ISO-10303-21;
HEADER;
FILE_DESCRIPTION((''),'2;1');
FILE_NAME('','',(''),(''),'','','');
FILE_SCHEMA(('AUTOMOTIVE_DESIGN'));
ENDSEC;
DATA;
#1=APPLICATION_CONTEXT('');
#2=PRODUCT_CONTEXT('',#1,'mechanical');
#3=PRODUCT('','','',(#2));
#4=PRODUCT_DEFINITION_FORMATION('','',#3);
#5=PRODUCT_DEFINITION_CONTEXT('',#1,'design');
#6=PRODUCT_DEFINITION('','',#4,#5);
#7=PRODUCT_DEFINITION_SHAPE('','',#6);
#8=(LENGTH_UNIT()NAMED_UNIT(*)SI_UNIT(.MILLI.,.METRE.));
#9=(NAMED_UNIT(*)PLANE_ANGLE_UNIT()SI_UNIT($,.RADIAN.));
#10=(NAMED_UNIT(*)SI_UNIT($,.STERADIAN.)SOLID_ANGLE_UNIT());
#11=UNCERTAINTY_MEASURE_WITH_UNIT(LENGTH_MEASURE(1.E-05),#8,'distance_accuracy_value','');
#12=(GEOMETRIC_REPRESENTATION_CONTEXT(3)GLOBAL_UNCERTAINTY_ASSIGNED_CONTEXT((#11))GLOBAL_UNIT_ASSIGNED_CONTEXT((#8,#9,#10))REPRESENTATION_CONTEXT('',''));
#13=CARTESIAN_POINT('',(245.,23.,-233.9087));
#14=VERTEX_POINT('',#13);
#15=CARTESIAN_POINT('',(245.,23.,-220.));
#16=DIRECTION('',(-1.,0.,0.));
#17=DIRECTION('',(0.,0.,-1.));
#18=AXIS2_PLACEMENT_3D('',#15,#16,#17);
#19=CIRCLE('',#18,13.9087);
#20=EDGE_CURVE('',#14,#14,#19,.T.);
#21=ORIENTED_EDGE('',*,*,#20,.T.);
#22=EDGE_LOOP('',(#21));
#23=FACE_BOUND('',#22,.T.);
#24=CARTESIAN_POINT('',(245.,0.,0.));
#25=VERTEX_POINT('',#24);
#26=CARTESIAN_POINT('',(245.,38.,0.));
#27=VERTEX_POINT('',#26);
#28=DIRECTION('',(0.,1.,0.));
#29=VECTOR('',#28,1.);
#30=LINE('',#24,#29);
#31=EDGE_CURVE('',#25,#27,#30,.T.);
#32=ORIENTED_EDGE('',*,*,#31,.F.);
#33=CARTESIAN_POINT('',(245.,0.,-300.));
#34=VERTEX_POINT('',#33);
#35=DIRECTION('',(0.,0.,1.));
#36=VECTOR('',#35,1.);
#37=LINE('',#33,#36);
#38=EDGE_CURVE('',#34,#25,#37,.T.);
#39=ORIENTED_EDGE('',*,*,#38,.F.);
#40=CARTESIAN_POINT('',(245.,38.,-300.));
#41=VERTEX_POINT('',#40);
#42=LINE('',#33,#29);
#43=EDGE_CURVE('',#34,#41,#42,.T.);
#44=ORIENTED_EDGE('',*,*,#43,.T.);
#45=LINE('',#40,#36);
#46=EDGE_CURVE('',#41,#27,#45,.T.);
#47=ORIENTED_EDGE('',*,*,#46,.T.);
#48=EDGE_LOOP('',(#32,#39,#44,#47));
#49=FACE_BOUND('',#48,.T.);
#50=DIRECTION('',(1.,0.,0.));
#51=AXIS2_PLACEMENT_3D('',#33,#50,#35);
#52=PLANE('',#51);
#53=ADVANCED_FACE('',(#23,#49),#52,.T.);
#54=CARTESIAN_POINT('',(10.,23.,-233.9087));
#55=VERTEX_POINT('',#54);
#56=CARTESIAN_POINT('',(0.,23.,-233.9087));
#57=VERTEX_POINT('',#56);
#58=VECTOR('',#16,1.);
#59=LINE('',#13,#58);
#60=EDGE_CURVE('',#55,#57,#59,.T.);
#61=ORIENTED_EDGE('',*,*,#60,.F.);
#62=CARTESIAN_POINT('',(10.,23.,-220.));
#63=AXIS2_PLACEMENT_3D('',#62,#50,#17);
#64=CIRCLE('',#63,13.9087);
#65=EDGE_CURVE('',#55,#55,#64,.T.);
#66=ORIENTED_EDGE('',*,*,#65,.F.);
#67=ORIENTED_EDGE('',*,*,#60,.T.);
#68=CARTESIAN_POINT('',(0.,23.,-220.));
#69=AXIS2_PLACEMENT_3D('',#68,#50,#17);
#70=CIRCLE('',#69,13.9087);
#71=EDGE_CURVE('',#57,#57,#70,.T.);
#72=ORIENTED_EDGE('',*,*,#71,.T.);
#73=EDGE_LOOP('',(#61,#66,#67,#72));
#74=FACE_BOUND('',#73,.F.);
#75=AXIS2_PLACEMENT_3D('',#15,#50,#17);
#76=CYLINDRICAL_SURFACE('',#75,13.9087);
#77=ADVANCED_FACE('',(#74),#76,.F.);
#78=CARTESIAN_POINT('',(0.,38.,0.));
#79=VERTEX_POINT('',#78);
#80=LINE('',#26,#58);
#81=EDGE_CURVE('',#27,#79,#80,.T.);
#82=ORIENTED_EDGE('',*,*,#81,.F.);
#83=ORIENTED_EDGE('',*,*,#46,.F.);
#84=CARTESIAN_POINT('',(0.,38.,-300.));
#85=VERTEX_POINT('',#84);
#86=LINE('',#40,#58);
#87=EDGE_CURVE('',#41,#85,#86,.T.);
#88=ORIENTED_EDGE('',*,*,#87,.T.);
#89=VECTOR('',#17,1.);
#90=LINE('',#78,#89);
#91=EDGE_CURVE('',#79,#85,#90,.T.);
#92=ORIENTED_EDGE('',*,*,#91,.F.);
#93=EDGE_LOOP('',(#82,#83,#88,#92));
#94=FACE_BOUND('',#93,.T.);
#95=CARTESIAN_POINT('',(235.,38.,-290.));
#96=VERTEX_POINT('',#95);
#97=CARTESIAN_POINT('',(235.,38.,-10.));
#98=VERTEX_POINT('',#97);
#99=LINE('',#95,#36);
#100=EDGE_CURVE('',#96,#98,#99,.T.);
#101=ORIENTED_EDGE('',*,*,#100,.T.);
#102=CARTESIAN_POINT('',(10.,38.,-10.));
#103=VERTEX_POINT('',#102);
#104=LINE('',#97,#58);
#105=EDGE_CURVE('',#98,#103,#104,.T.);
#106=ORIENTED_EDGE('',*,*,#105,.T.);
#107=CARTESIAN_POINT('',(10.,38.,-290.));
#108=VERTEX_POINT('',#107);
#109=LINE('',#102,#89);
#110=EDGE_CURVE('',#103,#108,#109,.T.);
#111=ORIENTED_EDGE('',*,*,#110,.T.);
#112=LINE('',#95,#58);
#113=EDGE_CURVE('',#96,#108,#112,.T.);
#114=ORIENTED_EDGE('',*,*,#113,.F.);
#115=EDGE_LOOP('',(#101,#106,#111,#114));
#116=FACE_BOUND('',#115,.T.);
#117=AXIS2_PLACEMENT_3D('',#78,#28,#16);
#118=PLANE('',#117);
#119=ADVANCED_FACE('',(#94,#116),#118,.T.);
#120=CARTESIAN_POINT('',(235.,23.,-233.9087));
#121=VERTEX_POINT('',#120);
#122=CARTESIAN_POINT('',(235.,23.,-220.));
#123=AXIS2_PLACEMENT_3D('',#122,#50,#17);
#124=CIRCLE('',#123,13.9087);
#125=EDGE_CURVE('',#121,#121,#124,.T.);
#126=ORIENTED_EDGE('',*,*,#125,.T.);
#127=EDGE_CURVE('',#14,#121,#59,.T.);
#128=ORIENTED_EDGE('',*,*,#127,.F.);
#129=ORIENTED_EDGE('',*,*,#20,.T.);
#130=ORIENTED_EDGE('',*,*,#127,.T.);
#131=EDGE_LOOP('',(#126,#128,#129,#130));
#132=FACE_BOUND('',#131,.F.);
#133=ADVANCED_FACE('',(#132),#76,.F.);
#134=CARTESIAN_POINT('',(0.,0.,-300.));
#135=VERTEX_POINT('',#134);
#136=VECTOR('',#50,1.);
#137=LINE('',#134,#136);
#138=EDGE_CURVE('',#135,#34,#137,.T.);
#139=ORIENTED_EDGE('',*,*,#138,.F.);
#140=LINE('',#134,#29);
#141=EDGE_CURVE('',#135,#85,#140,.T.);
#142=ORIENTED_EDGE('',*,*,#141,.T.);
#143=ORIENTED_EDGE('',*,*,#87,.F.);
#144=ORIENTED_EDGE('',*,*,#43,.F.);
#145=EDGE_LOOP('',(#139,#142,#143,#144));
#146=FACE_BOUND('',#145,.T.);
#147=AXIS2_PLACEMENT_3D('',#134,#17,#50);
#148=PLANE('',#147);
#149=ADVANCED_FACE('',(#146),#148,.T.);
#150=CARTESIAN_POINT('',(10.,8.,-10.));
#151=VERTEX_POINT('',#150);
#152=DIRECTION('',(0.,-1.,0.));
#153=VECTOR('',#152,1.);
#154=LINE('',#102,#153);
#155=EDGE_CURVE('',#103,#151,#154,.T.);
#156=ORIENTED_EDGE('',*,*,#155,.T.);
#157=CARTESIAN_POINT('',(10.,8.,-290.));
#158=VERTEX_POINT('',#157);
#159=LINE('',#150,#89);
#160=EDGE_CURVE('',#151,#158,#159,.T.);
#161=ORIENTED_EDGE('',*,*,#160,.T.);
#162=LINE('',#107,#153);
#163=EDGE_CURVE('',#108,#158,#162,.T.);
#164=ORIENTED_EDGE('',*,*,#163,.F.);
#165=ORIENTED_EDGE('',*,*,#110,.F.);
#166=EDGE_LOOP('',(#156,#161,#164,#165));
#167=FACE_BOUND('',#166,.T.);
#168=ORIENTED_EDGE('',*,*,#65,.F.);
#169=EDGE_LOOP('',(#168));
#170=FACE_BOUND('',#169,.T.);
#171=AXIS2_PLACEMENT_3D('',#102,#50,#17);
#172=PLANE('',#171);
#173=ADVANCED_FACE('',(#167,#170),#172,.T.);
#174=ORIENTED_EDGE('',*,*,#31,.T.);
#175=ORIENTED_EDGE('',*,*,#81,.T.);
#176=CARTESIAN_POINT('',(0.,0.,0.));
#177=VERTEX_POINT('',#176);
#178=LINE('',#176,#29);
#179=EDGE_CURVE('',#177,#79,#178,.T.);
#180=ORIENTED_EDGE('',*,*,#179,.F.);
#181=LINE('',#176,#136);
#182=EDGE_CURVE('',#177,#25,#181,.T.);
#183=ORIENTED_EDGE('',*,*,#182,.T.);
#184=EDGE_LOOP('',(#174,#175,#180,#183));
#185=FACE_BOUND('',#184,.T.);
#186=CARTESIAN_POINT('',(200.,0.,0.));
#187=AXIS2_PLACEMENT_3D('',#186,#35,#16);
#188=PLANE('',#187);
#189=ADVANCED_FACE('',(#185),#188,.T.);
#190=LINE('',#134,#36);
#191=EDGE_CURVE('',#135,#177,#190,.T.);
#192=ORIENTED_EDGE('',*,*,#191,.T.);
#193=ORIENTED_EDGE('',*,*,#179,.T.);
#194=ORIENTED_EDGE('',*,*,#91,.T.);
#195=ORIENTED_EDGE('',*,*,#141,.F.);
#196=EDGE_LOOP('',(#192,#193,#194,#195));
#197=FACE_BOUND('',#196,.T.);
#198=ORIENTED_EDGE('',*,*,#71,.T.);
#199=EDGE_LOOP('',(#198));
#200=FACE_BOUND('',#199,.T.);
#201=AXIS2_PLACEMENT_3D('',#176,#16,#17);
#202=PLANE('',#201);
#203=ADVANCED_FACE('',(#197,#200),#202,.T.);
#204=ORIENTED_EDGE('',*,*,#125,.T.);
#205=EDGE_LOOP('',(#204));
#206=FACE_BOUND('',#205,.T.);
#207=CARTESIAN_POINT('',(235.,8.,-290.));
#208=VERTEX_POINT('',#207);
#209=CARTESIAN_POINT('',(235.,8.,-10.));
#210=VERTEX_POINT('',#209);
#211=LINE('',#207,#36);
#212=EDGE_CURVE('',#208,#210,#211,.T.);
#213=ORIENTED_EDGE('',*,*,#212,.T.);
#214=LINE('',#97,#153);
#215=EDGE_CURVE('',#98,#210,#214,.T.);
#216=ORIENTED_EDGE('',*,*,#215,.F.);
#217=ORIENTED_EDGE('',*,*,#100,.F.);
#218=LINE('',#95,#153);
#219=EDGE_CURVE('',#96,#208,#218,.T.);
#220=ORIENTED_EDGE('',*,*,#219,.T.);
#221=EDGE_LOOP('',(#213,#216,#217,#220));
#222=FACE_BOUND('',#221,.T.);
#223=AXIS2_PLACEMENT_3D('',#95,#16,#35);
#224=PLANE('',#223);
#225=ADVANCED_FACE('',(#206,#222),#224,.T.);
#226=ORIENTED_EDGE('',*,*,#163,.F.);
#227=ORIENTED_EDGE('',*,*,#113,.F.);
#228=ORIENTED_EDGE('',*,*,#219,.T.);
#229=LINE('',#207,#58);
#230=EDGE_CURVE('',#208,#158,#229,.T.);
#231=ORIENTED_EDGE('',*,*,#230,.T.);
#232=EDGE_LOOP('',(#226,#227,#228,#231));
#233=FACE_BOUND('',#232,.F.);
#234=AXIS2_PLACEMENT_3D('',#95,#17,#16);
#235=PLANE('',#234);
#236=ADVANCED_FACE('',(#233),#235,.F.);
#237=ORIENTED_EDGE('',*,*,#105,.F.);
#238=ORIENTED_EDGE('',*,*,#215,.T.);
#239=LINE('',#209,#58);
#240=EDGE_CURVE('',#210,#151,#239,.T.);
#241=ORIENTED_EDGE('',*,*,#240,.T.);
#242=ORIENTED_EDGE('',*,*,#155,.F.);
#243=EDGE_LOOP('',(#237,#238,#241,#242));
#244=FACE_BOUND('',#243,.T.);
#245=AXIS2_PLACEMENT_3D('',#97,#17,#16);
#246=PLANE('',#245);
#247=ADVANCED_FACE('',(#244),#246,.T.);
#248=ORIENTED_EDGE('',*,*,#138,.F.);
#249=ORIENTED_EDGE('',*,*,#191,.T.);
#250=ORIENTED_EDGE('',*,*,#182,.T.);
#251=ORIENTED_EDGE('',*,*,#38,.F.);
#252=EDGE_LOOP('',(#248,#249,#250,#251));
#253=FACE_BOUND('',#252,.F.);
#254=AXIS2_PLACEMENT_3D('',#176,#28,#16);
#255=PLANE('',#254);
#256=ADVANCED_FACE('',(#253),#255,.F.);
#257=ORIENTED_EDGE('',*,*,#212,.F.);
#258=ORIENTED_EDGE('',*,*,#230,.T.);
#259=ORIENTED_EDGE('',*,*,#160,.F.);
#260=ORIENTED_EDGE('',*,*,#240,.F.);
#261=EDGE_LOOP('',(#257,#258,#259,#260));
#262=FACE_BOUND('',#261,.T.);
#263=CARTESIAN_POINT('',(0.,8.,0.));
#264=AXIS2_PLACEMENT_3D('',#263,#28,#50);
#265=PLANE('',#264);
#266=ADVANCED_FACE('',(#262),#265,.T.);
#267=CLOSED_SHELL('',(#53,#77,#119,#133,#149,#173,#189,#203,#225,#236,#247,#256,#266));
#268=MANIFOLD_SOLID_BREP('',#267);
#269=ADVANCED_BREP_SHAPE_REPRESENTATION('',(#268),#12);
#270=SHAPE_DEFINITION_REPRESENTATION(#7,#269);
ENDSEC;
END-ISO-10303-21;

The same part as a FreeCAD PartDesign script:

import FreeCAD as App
import Part
import Sketcher
from FreeCAD import Vector
Q = App.Units.Quantity

doc = App.newDocument("Part")
params = doc.addObject("Spreadsheet::Sheet", "Params")
for row, (alias, value) in enumerate([
    ("sketch1_width", "245 mm"),
    ("sketch1_height", "300 mm"),
    ("pad1_length", "38 mm"),
    ("sketch2_width", "225 mm"),
    ("sketch2_height", "280 mm"),
    ("pocket1_length", "30 mm"),
    ("pocket2_length", "250 mm"),
], start=1):
    params.set(f"A{row}", alias)
    params.set(f"B{row}", "=" + value)
    params.setAlias(f"B{row}", alias)

body = doc.addObject("PartDesign::Body", "Body")

sketch1 = body.newObject("Sketcher::SketchObject", "Sketch")
sketch1.AttachmentSupport = (doc.getObject("XZ_Plane"), [""])
sketch1.MapMode = "FlatFace"
sketch1.addGeometry([
    Part.LineSegment(Vector(0, -300, 0), Vector(0, 0, 0)),
    Part.LineSegment(Vector(0, 0, 0), Vector(245, 0, 0)),
    Part.LineSegment(Vector(245, 0, 0), Vector(245, -300, 0)),
    Part.LineSegment(Vector(245, -300, 0), Vector(0, -300, 0)),
], False)
sketch1.addConstraint([
    Sketcher.Constraint("Coincident", 0, 2, 1, 1),
    Sketcher.Constraint("Coincident", 1, 2, 2, 1),
    Sketcher.Constraint("Coincident", 2, 2, 3, 1),
    Sketcher.Constraint("Coincident", 3, 2, 0, 1),
    Sketcher.Constraint("Vertical", 0),
    Sketcher.Constraint("Horizontal", 1),
    Sketcher.Constraint("Vertical", 2),
    Sketcher.Constraint("Horizontal", 3),
    Sketcher.Constraint("Coincident", 0, 2, -1, 1),
    Sketcher.Constraint("DistanceX", 1, 1, 1, 2, Q("245 mm")),
    Sketcher.Constraint("DistanceY", 0, 1, 0, 2, Q("300 mm")),
])
sketch1.setExpression("Constraints[9]", "Params.sketch1_width")
sketch1.setExpression("Constraints[10]", "Params.sketch1_height")
pad1 = body.newObject("PartDesign::Pad", "Pad")
pad1.Profile = sketch1
pad1.setExpression("Length", "Params.pad1_length")
pad1.Reversed = True

sketch2 = body.newObject("Sketcher::SketchObject", "Sketch001")
sketch2.AttachmentSupport = (doc.getObject("XZ_Plane"), [""])
sketch2.MapMode = "FlatFace"
sketch2.AttachmentOffset = App.Placement(Vector(0, 0, -38), App.Rotation())
sketch2.addGeometry([
    Part.LineSegment(Vector(235, -10, 0), Vector(235, -290, 0)),
    Part.LineSegment(Vector(235, -290, 0), Vector(10, -290, 0)),
    Part.LineSegment(Vector(10, -290, 0), Vector(10, -10, 0)),
    Part.LineSegment(Vector(10, -10, 0), Vector(235, -10, 0)),
], False)
sketch2.addConstraint([
    Sketcher.Constraint("Coincident", 0, 2, 1, 1),
    Sketcher.Constraint("Coincident", 1, 2, 2, 1),
    Sketcher.Constraint("Coincident", 2, 2, 3, 1),
    Sketcher.Constraint("Coincident", 3, 2, 0, 1),
    Sketcher.Constraint("Vertical", 0),
    Sketcher.Constraint("Horizontal", 1),
    Sketcher.Constraint("Vertical", 2),
    Sketcher.Constraint("Horizontal", 3),
    Sketcher.Constraint("DistanceX", -1, 1, 1, 2, Q("10 mm")),
    Sketcher.Constraint("DistanceY", 2, 2, -1, 1, Q("10 mm")),
    Sketcher.Constraint("DistanceX", 1, 2, 1, 1, Q("225 mm")),
    Sketcher.Constraint("DistanceY", 0, 2, 0, 1, Q("280 mm")),
])
sketch2.setExpression("Constraints[10]", "Params.sketch2_width")
sketch2.setExpression("Constraints[11]", "Params.sketch2_height")
pocket1 = body.newObject("PartDesign::Pocket", "Pocket")
pocket1.Profile = sketch2
pocket1.setExpression("Length", "Params.pocket1_length")
pocket1.Reversed = True

sketch3 = body.newObject("Sketcher::SketchObject", "Sketch002")
sketch3.AttachmentSupport = (doc.getObject("YZ_Plane"), [""])
sketch3.MapMode = "FlatFace"
sketch3.AttachmentOffset = App.Placement(Vector(0, 0, 245), App.Rotation())
sketch3.addGeometry(Part.Circle(Vector(23, -220, 0), Vector(0, 0, 1), 14), False)
sketch3.addConstraint([
    Sketcher.Constraint("DistanceX", -1, 1, 0, 3, Q("23 mm")),
    Sketcher.Constraint("DistanceY", 0, 3, -1, 1, Q("220 mm")),
    Sketcher.Constraint("Diameter", 0, Q("27.8174 mm")),
])
pocket2 = body.newObject("PartDesign::Pocket", "Pocket001")
pocket2.Profile = sketch3
pocket2.setExpression("Length", "Params.pocket2_length")

doc.recompute()
